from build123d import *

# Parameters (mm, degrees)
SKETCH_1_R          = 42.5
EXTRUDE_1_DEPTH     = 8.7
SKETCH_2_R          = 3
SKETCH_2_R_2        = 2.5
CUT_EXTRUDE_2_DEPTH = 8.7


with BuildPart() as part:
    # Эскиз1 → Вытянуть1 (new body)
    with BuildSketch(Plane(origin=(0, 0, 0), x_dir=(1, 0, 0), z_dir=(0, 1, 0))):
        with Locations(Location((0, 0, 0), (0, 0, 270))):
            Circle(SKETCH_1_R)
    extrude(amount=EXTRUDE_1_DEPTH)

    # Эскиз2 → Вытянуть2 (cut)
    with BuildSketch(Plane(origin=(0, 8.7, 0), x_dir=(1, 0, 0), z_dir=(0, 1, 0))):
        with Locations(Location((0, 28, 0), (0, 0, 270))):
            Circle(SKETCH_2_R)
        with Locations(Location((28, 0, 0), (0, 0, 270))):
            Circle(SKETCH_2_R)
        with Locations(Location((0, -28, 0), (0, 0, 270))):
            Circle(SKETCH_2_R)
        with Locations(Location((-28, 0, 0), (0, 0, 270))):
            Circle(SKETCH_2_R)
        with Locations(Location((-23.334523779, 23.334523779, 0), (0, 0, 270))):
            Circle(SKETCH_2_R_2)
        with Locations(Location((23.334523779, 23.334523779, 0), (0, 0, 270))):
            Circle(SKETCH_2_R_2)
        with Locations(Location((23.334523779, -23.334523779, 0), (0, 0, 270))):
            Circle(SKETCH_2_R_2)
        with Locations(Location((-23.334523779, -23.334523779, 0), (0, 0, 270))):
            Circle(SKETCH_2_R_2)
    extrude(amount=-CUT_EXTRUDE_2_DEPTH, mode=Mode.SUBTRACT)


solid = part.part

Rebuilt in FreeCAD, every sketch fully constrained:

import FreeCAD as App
import Part
import Sketcher
from FreeCAD import Vector

doc = App.newDocument("Part")
params = doc.addObject("Spreadsheet::Sheet", "Params")
for row, (alias, value) in enumerate([
    ("sketch1_diameter", "85 mm"),
    ("pad1_length", "8.7 mm"),
    ("sketch2_diameter", "6 mm"),
    ("sketch2_diameter2", "5 mm"),
    ("pocket1_length", "8.7 mm"),
], start=1):
    params.set(f"A{row}", alias)
    params.set(f"B{row}", "=" + value)
    params.setAlias(f"B{row}", alias)

body = doc.addObject("PartDesign::Body", "Body")

# Sketch on XZ plane
sketch1 = body.newObject("Sketcher::SketchObject", "Sketch")
sketch1.AttachmentSupport = (doc.getObject("XZ_Plane"), [""])
sketch1.MapMode = "FlatFace"
sketch1.addGeometry(Part.Circle(Vector(0, 0, 0), Vector(0, 0, 1), 42), False)
sketch1.addConstraint([
    Sketcher.Constraint("Coincident", 0, 3, -1, 1),
    Sketcher.Constraint("Diameter", 0, 85.0),
])
sketch1.setExpression("Constraints[1]", "Params.sketch1_diameter")
pad1 = body.newObject("PartDesign::Pad", "Pad")
pad1.Profile = sketch1
pad1.setExpression("Length", "Params.pad1_length")
pad1.Reversed = True

# Sketch on XZ plane
sketch2 = body.newObject("Sketcher::SketchObject", "Sketch001")
sketch2.AttachmentSupport = (doc.getObject("XZ_Plane"), [""])
sketch2.MapMode = "FlatFace"
sketch2.AttachmentOffset = App.Placement(Vector(0, 0, -8.7), App.Rotation())
sketch2.addGeometry([
    Part.Circle(Vector(0, -28, 0), Vector(0, 0, 1), 3),  # 0
    Part.Circle(Vector(28, 0, 0), Vector(0, 0, 1), 3),  # 1
    Part.Circle(Vector(0, 28, 0), Vector(0, 0, 1), 3),  # 2
    Part.Circle(Vector(-28, 0, 0), Vector(0, 0, 1), 3),  # 3
    Part.Circle(Vector(-23.3, -23.3, 0), Vector(0, 0, 1), 2.5),  # 4
    Part.Circle(Vector(23.3, -23.3, 0), Vector(0, 0, 1), 2.5),  # 5
    Part.Circle(Vector(23.3, 23.3, 0), Vector(0, 0, 1), 2.5),  # 6
    Part.Circle(Vector(-23.3, 23.3, 0), Vector(0, 0, 1), 2.5),  # 7
], False)
sketch2.addConstraint([
    Sketcher.Constraint("Equal", 0, 1),
    Sketcher.Constraint("Equal", 1, 2),
    Sketcher.Constraint("Equal", 2, 3),
    Sketcher.Constraint("Equal", 4, 5),
    Sketcher.Constraint("Equal", 5, 6),
    Sketcher.Constraint("Equal", 6, 7),
    Sketcher.Constraint("Symmetric", 0, 3, 2, 3, -1, 1),
    Sketcher.Constraint("Symmetric", 1, 3, 3, 3, -1, 1),
    Sketcher.Constraint("Symmetric", 4, 3, 6, 3, -1, 1),
    Sketcher.Constraint("Symmetric", 5, 3, 7, 3, -1, 1),
    Sketcher.Constraint("Symmetric", 4, 3, 5, 3, -2),
    Sketcher.Constraint("PointOnObject", 0, 3, -2),
    Sketcher.Constraint("PointOnObject", 1, 3, -1),
    Sketcher.Constraint("Diameter", 0, 6.0),
    Sketcher.Constraint("Diameter", 4, 5.0),
    Sketcher.Constraint("DistanceY", 0, 3, -1, 1, 28.0),
    Sketcher.Constraint("DistanceX", -1, 1, 1, 3, 28.0),
    Sketcher.Constraint("DistanceX", 4, 3, -1, 1, 23.334524),
    Sketcher.Constraint("DistanceY", 4, 3, -1, 1, 23.334524),
])
sketch2.setExpression("Constraints[13]", "Params.sketch2_diameter")
sketch2.setExpression("Constraints[14]", "Params.sketch2_diameter2")
pocket1 = body.newObject("PartDesign::Pocket", "Pocket")
pocket1.Profile = sketch2
pocket1.setExpression("Length", "Params.pocket1_length")
pocket1.Reversed = True

doc.recompute()
